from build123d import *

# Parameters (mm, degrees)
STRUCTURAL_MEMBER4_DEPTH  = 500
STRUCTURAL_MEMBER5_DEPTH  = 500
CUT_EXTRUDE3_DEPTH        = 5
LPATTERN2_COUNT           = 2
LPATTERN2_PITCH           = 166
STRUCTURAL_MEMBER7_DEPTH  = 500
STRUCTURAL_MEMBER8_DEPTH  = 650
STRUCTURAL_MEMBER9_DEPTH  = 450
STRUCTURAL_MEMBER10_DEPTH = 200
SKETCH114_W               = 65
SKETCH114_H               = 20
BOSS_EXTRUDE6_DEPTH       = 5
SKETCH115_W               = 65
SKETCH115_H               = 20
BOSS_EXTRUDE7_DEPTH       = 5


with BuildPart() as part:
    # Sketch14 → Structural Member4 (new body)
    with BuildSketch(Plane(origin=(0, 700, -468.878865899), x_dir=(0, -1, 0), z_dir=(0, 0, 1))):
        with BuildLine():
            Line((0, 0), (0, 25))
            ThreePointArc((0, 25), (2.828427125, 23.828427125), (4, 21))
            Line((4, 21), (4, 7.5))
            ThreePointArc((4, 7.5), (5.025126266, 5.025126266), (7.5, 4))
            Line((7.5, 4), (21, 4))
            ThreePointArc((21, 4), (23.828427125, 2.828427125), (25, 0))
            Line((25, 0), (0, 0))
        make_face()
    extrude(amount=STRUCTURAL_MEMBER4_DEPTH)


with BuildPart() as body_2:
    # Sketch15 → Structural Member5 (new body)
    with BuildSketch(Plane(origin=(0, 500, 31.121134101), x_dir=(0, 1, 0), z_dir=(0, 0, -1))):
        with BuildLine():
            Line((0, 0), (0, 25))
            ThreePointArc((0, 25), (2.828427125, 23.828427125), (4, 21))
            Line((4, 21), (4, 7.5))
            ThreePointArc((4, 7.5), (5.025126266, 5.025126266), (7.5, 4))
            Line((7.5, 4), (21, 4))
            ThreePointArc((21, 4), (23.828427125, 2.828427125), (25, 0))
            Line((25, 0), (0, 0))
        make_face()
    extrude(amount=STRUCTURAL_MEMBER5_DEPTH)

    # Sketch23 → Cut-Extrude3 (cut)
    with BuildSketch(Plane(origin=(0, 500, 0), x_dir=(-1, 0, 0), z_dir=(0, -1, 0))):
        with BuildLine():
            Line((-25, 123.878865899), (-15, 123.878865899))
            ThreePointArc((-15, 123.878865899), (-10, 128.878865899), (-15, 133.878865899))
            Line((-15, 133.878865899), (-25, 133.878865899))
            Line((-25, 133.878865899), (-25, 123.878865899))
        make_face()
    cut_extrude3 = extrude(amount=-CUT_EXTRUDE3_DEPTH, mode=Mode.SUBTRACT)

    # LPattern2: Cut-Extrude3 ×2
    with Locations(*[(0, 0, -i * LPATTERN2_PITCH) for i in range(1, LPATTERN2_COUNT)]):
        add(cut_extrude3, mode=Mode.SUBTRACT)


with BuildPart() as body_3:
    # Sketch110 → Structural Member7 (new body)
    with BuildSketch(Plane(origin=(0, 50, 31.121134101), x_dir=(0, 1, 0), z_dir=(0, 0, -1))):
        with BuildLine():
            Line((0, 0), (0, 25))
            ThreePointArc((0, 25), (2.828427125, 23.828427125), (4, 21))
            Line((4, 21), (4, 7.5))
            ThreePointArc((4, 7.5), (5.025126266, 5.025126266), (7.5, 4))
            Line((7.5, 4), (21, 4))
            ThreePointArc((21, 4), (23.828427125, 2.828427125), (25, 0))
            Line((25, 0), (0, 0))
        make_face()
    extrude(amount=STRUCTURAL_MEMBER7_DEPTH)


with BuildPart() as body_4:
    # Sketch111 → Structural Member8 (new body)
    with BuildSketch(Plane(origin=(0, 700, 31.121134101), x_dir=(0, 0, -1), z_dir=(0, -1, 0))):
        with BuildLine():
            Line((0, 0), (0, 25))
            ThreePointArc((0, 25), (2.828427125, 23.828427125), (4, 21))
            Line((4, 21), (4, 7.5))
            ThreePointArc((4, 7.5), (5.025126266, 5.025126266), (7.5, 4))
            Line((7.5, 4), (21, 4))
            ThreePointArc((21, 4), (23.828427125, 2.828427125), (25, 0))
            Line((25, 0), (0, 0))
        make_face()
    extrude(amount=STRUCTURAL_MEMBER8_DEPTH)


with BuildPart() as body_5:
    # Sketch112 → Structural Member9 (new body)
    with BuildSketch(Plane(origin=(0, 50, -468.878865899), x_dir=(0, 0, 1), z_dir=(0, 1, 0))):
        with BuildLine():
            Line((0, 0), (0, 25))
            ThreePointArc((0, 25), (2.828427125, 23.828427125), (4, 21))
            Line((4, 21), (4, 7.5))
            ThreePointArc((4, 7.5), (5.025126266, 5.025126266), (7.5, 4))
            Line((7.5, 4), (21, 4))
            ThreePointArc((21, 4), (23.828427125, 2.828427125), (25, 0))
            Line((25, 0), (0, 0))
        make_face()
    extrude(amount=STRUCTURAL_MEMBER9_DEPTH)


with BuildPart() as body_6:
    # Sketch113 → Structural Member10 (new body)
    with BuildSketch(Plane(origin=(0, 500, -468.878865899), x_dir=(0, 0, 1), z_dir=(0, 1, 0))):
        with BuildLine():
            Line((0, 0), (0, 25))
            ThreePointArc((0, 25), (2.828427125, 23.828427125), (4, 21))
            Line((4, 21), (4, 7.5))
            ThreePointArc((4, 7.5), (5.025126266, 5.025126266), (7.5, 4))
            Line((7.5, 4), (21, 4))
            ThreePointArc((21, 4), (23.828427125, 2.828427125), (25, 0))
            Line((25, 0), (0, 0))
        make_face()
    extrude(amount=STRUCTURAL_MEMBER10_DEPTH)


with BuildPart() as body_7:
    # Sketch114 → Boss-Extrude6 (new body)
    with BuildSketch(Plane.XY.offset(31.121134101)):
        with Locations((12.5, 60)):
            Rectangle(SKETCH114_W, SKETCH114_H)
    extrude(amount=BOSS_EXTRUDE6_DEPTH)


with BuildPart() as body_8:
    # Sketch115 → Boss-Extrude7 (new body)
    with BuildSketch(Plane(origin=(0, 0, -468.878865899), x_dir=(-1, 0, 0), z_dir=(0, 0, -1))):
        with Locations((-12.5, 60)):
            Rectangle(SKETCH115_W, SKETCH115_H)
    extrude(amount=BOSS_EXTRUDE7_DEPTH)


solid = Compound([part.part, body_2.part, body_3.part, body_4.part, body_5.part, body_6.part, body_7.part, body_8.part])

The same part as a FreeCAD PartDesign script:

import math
import FreeCAD as App
import Part
import Sketcher
Q = App.Units.Quantity

doc = App.newDocument("Part")
body = doc.addObject("PartDesign::Body", "Body")

sketch1 = doc.addObject("Sketcher::SketchObject", "Sketch")
body.addObject(sketch1)
sketch1.AttachmentSupport = (doc.XY_Plane, [""])
sketch1.MapMode = "FlatFace"
sketch1.AttachmentOffset = App.Placement(App.Vector(0, 0, -468.878866), App.Rotation())
sketch1.addGeometry([
    Part.LineSegment(App.Vector(25, 700, 0), App.Vector(0, 700, 0)),
    Part.LineSegment(App.Vector(0, 700, 0), App.Vector(0, 675, 0)),
    Part.ArcOfCircle(Part.Circle(App.Vector(0, 679, 0), App.Vector(0, 0, 1), 4), math.radians(-90), math.radians(0)),
    Part.LineSegment(App.Vector(4, 679, 0), App.Vector(4, 692.5, 0)),
    Part.ArcOfCircle(Part.Circle(App.Vector(7.5, 692.5, 0), App.Vector(0, 0, 1), 3.5), math.radians(90), math.radians(180)),
    Part.LineSegment(App.Vector(7.5, 696, 0), App.Vector(21, 696, 0)),
    Part.ArcOfCircle(Part.Circle(App.Vector(21, 700, 0), App.Vector(0, 0, 1), 4), math.radians(-90), math.radians(0)),
], False)
sketch1.addConstraint([
    Sketcher.Constraint("Coincident", 0, 2, 1, 1),
    Sketcher.Constraint("Coincident", 1, 2, 2, 1),
    Sketcher.Constraint("Tangent", 2, 2, 3, 1),
    Sketcher.Constraint("Tangent", 3, 2, 4, 2),
    Sketcher.Constraint("Tangent", 4, 1, 5, 1),
    Sketcher.Constraint("Tangent", 5, 2, 6, 1),
    Sketcher.Constraint("Coincident", 6, 2, 0, 1),
    Sketcher.Constraint("Horizontal", 0),
    Sketcher.Constraint("Vertical", 1),
    Sketcher.Constraint("Vertical", 3),
    Sketcher.Constraint("Horizontal", 5),
    Sketcher.Constraint("Equal", 2, 6),
    Sketcher.Constraint("PointOnObject", 2, 3, -2),
    Sketcher.Constraint("PointOnObject", 0, 2, -2),
    Sketcher.Constraint("Horizontal", 6, 3, 0, 2),
    Sketcher.Constraint("Equal", 0, 1),
    Sketcher.Constraint("Radius", 2, Q("4 mm")),
    Sketcher.Constraint("Radius", 4, Q("3.5 mm")),
    Sketcher.Constraint("DistanceX", 0, 2, 0, 1, Q("25 mm")),
    Sketcher.Constraint("DistanceY", -1, 1, 2, 3, Q("679 mm")),
])
pad1 = doc.addObject("PartDesign::Pad", "Pad")
body.addObject(pad1)
pad1.Profile = sketch1
pad1.Length = 500
body2 = doc.addObject("PartDesign::Body", "Body001")

sketch2 = doc.addObject("Sketcher::SketchObject", "Sketch001")
body2.addObject(sketch2)
sketch2.AttachmentSupport = (doc.getObject("XY_Plane001"), [""])
sketch2.MapMode = "FlatFace"
sketch2.AttachmentOffset = App.Placement(App.Vector(0, 0, 31.121134), App.Rotation())
sketch2.addGeometry([
    Part.LineSegment(App.Vector(25, 500, 0), App.Vector(0, 500, 0)),
    Part.LineSegment(App.Vector(0, 500, 0), App.Vector(0, 525, 0)),
    Part.ArcOfCircle(Part.Circle(App.Vector(0, 521, 0), App.Vector(0, 0, 1), 4), math.radians(0), math.radians(90)),
    Part.LineSegment(App.Vector(4, 521, 0), App.Vector(4, 507.5, 0)),
    Part.ArcOfCircle(Part.Circle(App.Vector(7.5, 507.5, 0), App.Vector(0, 0, 1), 3.5), math.radians(-180), math.radians(-90)),
    Part.LineSegment(App.Vector(7.5, 504, 0), App.Vector(21, 504, 0)),
    Part.ArcOfCircle(Part.Circle(App.Vector(21, 500, 0), App.Vector(0, 0, 1), 4), math.radians(0), math.radians(90)),
], False)
sketch2.addConstraint([
    Sketcher.Constraint("Coincident", 0, 2, 1, 1),
    Sketcher.Constraint("Coincident", 1, 2, 2, 2),
    Sketcher.Constraint("Tangent", 2, 1, 3, 1),
    Sketcher.Constraint("Tangent", 3, 2, 4, 1),
    Sketcher.Constraint("Tangent", 4, 2, 5, 1),
    Sketcher.Constraint("Tangent", 5, 2, 6, 2),
    Sketcher.Constraint("Coincident", 6, 1, 0, 1),
    Sketcher.Constraint("Horizontal", 0),
    Sketcher.Constraint("Vertical", 1),
    Sketcher.Constraint("Vertical", 3),
    Sketcher.Constraint("Horizontal", 5),
    Sketcher.Constraint("Equal", 2, 6),
    Sketcher.Constraint("PointOnObject", 2, 3, -2),
    Sketcher.Constraint("PointOnObject", 0, 2, -2),
    Sketcher.Constraint("Horizontal", 6, 3, 0, 2),
    Sketcher.Constraint("Equal", 0, 1),
    Sketcher.Constraint("Radius", 2, Q("4 mm")),
    Sketcher.Constraint("Radius", 4, Q("3.5 mm")),
    Sketcher.Constraint("DistanceX", 0, 2, 0, 1, Q("25 mm")),
    Sketcher.Constraint("DistanceY", -1, 1, 2, 3, Q("521 mm")),
])
pad2 = doc.addObject("PartDesign::Pad", "Pad001")
body2.addObject(pad2)
pad2.Profile = sketch2
pad2.Length = 500
pad2.Reversed = True

sketch3 = doc.addObject("Sketcher::SketchObject", "Sketch002")
body2.addObject(sketch3)
sketch3.AttachmentSupport = (doc.getObject("XZ_Plane001"), [""])
sketch3.MapMode = "FlatFace"
sketch3.AttachmentOffset = App.Placement(App.Vector(0, 0, -500), App.Rotation())
sketch3.addGeometry([
    Part.LineSegment(App.Vector(25, -124, 0), App.Vector(15, -124, 0)),
    Part.ArcOfCircle(Part.Circle(App.Vector(15, -129, 0), App.Vector(0, 0, 1), 5), math.radians(90), math.radians(270)),
    Part.LineSegment(App.Vector(15, -134, 0), App.Vector(25, -134, 0)),
    Part.LineSegment(App.Vector(25, -134, 0), App.Vector(25, -124, 0)),
], False)
sketch3.addConstraint([
    Sketcher.Constraint("Tangent", 0, 2, 1, 1),
    Sketcher.Constraint("Tangent", 1, 2, 2, 1),
    Sketcher.Constraint("Coincident", 2, 2, 3, 1),
    Sketcher.Constraint("Coincident", 3, 2, 0, 1),
    Sketcher.Constraint("Horizontal", 0),
    Sketcher.Constraint("Horizontal", 2),
    Sketcher.Constraint("Vertical", 3),
    Sketcher.Constraint("Equal", 2, 3),
    Sketcher.Constraint("Radius", 1, Q("5 mm")),
    Sketcher.Constraint("DistanceX", -1, 1, 1, 3, Q("15 mm")),
    Sketcher.Constraint("DistanceY", 1, 3, -1, 1, Q("128.878866 mm")),
])
pocket1 = doc.addObject("PartDesign::Pocket", "Pocket")
body2.addObject(pocket1)
pocket1.Profile = sketch3
pocket1.Length = 5
doc.recompute()

linearpattern = doc.addObject("PartDesign::LinearPattern", "LinearPattern")
body2.addObject(linearpattern)
linearpattern.Originals = [pocket1]
linearpattern.Direction = (doc.getObject("Z_Axis001"), [""])
linearpattern.Mode = "offset"
linearpattern.Offset = 166
linearpattern.Occurrences = 2
linearpattern.Reversed = True
body2.Tip = linearpattern
body3 = doc.addObject("PartDesign::Body", "Body002")

sketch4 = doc.addObject("Sketcher::SketchObject", "Sketch003")
body3.addObject(sketch4)
sketch4.AttachmentSupport = (doc.getObject("XY_Plane002"), [""])
sketch4.MapMode = "FlatFace"
sketch4.AttachmentOffset = App.Placement(App.Vector(0, 0, 31.121134), App.Rotation())
sketch4.addGeometry([
    Part.LineSegment(App.Vector(25, 50, 0), App.Vector(0, 50, 0)),
    Part.LineSegment(App.Vector(0, 50, 0), App.Vector(0, 75, 0)),
    Part.ArcOfCircle(Part.Circle(App.Vector(0, 71, 0), App.Vector(0, 0, 1), 4), math.radians(0), math.radians(90)),
    Part.LineSegment(App.Vector(4, 71, 0), App.Vector(4, 57.5, 0)),
    Part.ArcOfCircle(Part.Circle(App.Vector(7.5, 57.5, 0), App.Vector(0, 0, 1), 3.5), math.radians(-180), math.radians(-90)),
    Part.LineSegment(App.Vector(7.5, 54, 0), App.Vector(21, 54, 0)),
    Part.ArcOfCircle(Part.Circle(App.Vector(21, 50, 0), App.Vector(0, 0, 1), 4), math.radians(0), math.radians(90)),
], False)
sketch4.addConstraint([
    Sketcher.Constraint("Coincident", 0, 2, 1, 1),
    Sketcher.Constraint("Coincident", 1, 2, 2, 2),
    Sketcher.Constraint("Tangent", 2, 1, 3, 1),
    Sketcher.Constraint("Tangent", 3, 2, 4, 1),
    Sketcher.Constraint("Tangent", 4, 2, 5, 1),
    Sketcher.Constraint("Tangent", 5, 2, 6, 2),
    Sketcher.Constraint("Coincident", 6, 1, 0, 1),
    Sketcher.Constraint("Horizontal", 0),
    Sketcher.Constraint("Vertical", 1),
    Sketcher.Constraint("Vertical", 3),
    Sketcher.Constraint("Horizontal", 5),
    Sketcher.Constraint("Equal", 2, 6),
    Sketcher.Constraint("PointOnObject", 2, 3, -2),
    Sketcher.Constraint("PointOnObject", 0, 2, -2),
    Sketcher.Constraint("Horizontal", 6, 3, 0, 2),
    Sketcher.Constraint("Equal", 0, 1),
    Sketcher.Constraint("Radius", 2, Q("4 mm")),
    Sketcher.Constraint("Radius", 4, Q("3.5 mm")),
    Sketcher.Constraint("DistanceX", 0, 2, 0, 1, Q("25 mm")),
    Sketcher.Constraint("DistanceY", -1, 1, 2, 3, Q("71 mm")),
])
pad3 = doc.addObject("PartDesign::Pad", "Pad002")
body3.addObject(pad3)
pad3.Profile = sketch4
pad3.Length = 500
pad3.Reversed = True
body4 = doc.addObject("PartDesign::Body", "Body003")

sketch5 = doc.addObject("Sketcher::SketchObject", "Sketch004")
body4.addObject(sketch5)
sketch5.AttachmentSupport = (doc.getObject("XZ_Plane003"), [""])
sketch5.MapMode = "FlatFace"
sketch5.AttachmentOffset = App.Placement(App.Vector(0, 0, -700), App.Rotation())
sketch5.addGeometry([
    Part.LineSegment(App.Vector(25, 31.1, 0), App.Vector(0, 31.1, 0)),
    Part.LineSegment(App.Vector(0, 31.1, 0), App.Vector(0, 6.1, 0)),
    Part.ArcOfCircle(Part.Circle(App.Vector(0, 10.1, 0), App.Vector(0, 0, 1), 4), math.radians(-90), math.radians(0)),
    Part.LineSegment(App.Vector(4, 10.1, 0), App.Vector(4, 23.6, 0)),
    Part.ArcOfCircle(Part.Circle(App.Vector(7.5, 23.6, 0), App.Vector(0, 0, 1), 3.5), math.radians(90), math.radians(180)),
    Part.LineSegment(App.Vector(7.5, 27.1, 0), App.Vector(21, 27.1, 0)),
    Part.ArcOfCircle(Part.Circle(App.Vector(21, 31.1, 0), App.Vector(0, 0, 1), 4), math.radians(-90), math.radians(0)),
], False)
sketch5.addConstraint([
    Sketcher.Constraint("Coincident", 0, 2, 1, 1),
    Sketcher.Constraint("Coincident", 1, 2, 2, 1),
    Sketcher.Constraint("Tangent", 2, 2, 3, 1),
    Sketcher.Constraint("Tangent", 3, 2, 4, 2),
    Sketcher.Constraint("Tangent", 4, 1, 5, 1),
    Sketcher.Constraint("Tangent", 5, 2, 6, 1),
    Sketcher.Constraint("Coincident", 6, 2, 0, 1),
    Sketcher.Constraint("Horizontal", 0),
    Sketcher.Constraint("Vertical", 1),
    Sketcher.Constraint("Vertical", 3),
    Sketcher.Constraint("Horizontal", 5),
    Sketcher.Constraint("Equal", 2, 6),
    Sketcher.Constraint("PointOnObject", 2, 3, -2),
    Sketcher.Constraint("PointOnObject", 0, 2, -2),
    Sketcher.Constraint("Horizontal", 6, 3, 0, 2),
    Sketcher.Constraint("Equal", 0, 1),
    Sketcher.Constraint("Radius", 2, Q("4 mm")),
    Sketcher.Constraint("Radius", 4, Q("3.5 mm")),
    Sketcher.Constraint("DistanceX", 0, 2, 0, 1, Q("25 mm")),
    Sketcher.Constraint("DistanceY", -1, 1, 2, 3, Q("10.121134 mm")),
])
pad4 = doc.addObject("PartDesign::Pad", "Pad003")
body4.addObject(pad4)
pad4.Profile = sketch5
pad4.Length = 650
body5 = doc.addObject("PartDesign::Body", "Body004")

sketch6 = doc.addObject("Sketcher::SketchObject", "Sketch005")
body5.addObject(sketch6)
sketch6.AttachmentSupport = (doc.getObject("XZ_Plane004"), [""])
sketch6.MapMode = "FlatFace"
sketch6.AttachmentOffset = App.Placement(App.Vector(0, 0, -50), App.Rotation())
sketch6.addGeometry([
    Part.LineSegment(App.Vector(25, -468.9, 0), App.Vector(0, -468.9, 0)),
    Part.LineSegment(App.Vector(0, -468.9, 0), App.Vector(0, -443.9, 0)),
    Part.ArcOfCircle(Part.Circle(App.Vector(0, -447.9, 0), App.Vector(0, 0, 1), 4), math.radians(0), math.radians(90)),
    Part.LineSegment(App.Vector(4, -447.9, 0), App.Vector(4, -461.4, 0)),
    Part.ArcOfCircle(Part.Circle(App.Vector(7.5, -461.4, 0), App.Vector(0, 0, 1), 3.5), math.radians(-180), math.radians(-90)),
    Part.LineSegment(App.Vector(7.5, -464.9, 0), App.Vector(21, -464.9, 0)),
    Part.ArcOfCircle(Part.Circle(App.Vector(21, -468.9, 0), App.Vector(0, 0, 1), 4), math.radians(0), math.radians(90)),
], False)
sketch6.addConstraint([
    Sketcher.Constraint("Coincident", 0, 2, 1, 1),
    Sketcher.Constraint("Coincident", 1, 2, 2, 2),
    Sketcher.Constraint("Tangent", 2, 1, 3, 1),
    Sketcher.Constraint("Tangent", 3, 2, 4, 1),
    Sketcher.Constraint("Tangent", 4, 2, 5, 1),
    Sketcher.Constraint("Tangent", 5, 2, 6, 2),
    Sketcher.Constraint("Coincident", 6, 1, 0, 1),
    Sketcher.Constraint("Horizontal", 0),
    Sketcher.Constraint("Vertical", 1),
    Sketcher.Constraint("Vertical", 3),
    Sketcher.Constraint("Horizontal", 5),
    Sketcher.Constraint("Equal", 2, 6),
    Sketcher.Constraint("PointOnObject", 2, 3, -2),
    Sketcher.Constraint("PointOnObject", 0, 2, -2),
    Sketcher.Constraint("Horizontal", 6, 3, 0, 2),
    Sketcher.Constraint("Equal", 0, 1),
    Sketcher.Constraint("Radius", 2, Q("4 mm")),
    Sketcher.Constraint("Radius", 4, Q("3.5 mm")),
    Sketcher.Constraint("DistanceX", 0, 2, 0, 1, Q("25 mm")),
    Sketcher.Constraint("DistanceY", 2, 3, -1, 1, Q("447.878866 mm")),
])
pad5 = doc.addObject("PartDesign::Pad", "Pad004")
body5.addObject(pad5)
pad5.Profile = sketch6
pad5.Length = 450
pad5.Reversed = True
body6 = doc.addObject("PartDesign::Body", "Body005")

sketch7 = doc.addObject("Sketcher::SketchObject", "Sketch006")
body6.addObject(sketch7)
sketch7.AttachmentSupport = (doc.getObject("XZ_Plane005"), [""])
sketch7.MapMode = "FlatFace"
sketch7.AttachmentOffset = App.Placement(App.Vector(0, 0, -500), App.Rotation())
sketch7.addGeometry([
    Part.LineSegment(App.Vector(25, -468.9, 0), App.Vector(0, -468.9, 0)),
    Part.LineSegment(App.Vector(0, -468.9, 0), App.Vector(0, -443.9, 0)),
    Part.ArcOfCircle(Part.Circle(App.Vector(0, -447.9, 0), App.Vector(0, 0, 1), 4), math.radians(0), math.radians(90)),
    Part.LineSegment(App.Vector(4, -447.9, 0), App.Vector(4, -461.4, 0)),
    Part.ArcOfCircle(Part.Circle(App.Vector(7.5, -461.4, 0), App.Vector(0, 0, 1), 3.5), math.radians(-180), math.radians(-90)),
    Part.LineSegment(App.Vector(7.5, -464.9, 0), App.Vector(21, -464.9, 0)),
    Part.ArcOfCircle(Part.Circle(App.Vector(21, -468.9, 0), App.Vector(0, 0, 1), 4), math.radians(0), math.radians(90)),
], False)
sketch7.addConstraint([
    Sketcher.Constraint("Coincident", 0, 2, 1, 1),
    Sketcher.Constraint("Coincident", 1, 2, 2, 2),
    Sketcher.Constraint("Tangent", 2, 1, 3, 1),
    Sketcher.Constraint("Tangent", 3, 2, 4, 1),
    Sketcher.Constraint("Tangent", 4, 2, 5, 1),
    Sketcher.Constraint("Tangent", 5, 2, 6, 2),
    Sketcher.Constraint("Coincident", 6, 1, 0, 1),
    Sketcher.Constraint("Horizontal", 0),
    Sketcher.Constraint("Vertical", 1),
    Sketcher.Constraint("Vertical", 3),
    Sketcher.Constraint("Horizontal", 5),
    Sketcher.Constraint("Equal", 2, 6),
    Sketcher.Constraint("PointOnObject", 2, 3, -2),
    Sketcher.Constraint("PointOnObject", 0, 2, -2),
    Sketcher.Constraint("Horizontal", 6, 3, 0, 2),
    Sketcher.Constraint("Equal", 0, 1),
    Sketcher.Constraint("Radius", 2, Q("4 mm")),
    Sketcher.Constraint("Radius", 4, Q("3.5 mm")),
    Sketcher.Constraint("DistanceX", 0, 2, 0, 1, Q("25 mm")),
    Sketcher.Constraint("DistanceY", 2, 3, -1, 1, Q("447.878866 mm")),
])
pad6 = doc.addObject("PartDesign::Pad", "Pad005")
body6.addObject(pad6)
pad6.Profile = sketch7
pad6.Length = 200
pad6.Reversed = True
body7 = doc.addObject("PartDesign::Body", "Body006")

sketch8 = doc.addObject("Sketcher::SketchObject", "Sketch007")
body7.addObject(sketch8)
sketch8.AttachmentSupport = (doc.getObject("XY_Plane006"), [""])
sketch8.MapMode = "FlatFace"
sketch8.AttachmentOffset = App.Placement(App.Vector(0, 0, 31.121134), App.Rotation())
sketch8.addGeometry([
    Part.LineSegment(App.Vector(-20, 70, 0), App.Vector(-20, 50, 0)),
    Part.LineSegment(App.Vector(-20, 50, 0), App.Vector(45, 50, 0)),
    Part.LineSegment(App.Vector(45, 50, 0), App.Vector(45, 70, 0)),
    Part.LineSegment(App.Vector(45, 70, 0), App.Vector(-20, 70, 0)),
], False)
sketch8.addConstraint([
    Sketcher.Constraint("Coincident", 0, 2, 1, 1),
    Sketcher.Constraint("Coincident", 1, 2, 2, 1),
    Sketcher.Constraint("Coincident", 2, 2, 3, 1),
    Sketcher.Constraint("Coincident", 3, 2, 0, 1),
    Sketcher.Constraint("Vertical", 0),
    Sketcher.Constraint("Horizontal", 1),
    Sketcher.Constraint("Vertical", 2),
    Sketcher.Constraint("Horizontal", 3),
    Sketcher.Constraint("DistanceX", 1, 1, 1, 2, Q("65 mm")),
    Sketcher.Constraint("DistanceY", 0, 2, 0, 1, Q("20 mm")),
    Sketcher.Constraint("DistanceX", 0, 2, -1, 1, Q("20 mm")),
    Sketcher.Constraint("DistanceY", -1, 1, 0, 2, Q("50 mm")),
])
pad7 = doc.addObject("PartDesign::Pad", "Pad006")
body7.addObject(pad7)
pad7.Profile = sketch8
pad7.Length = 5
body8 = doc.addObject("PartDesign::Body", "Body007")

sketch9 = doc.addObject("Sketcher::SketchObject", "Sketch008")
body8.addObject(sketch9)
sketch9.AttachmentSupport = (doc.getObject("XY_Plane007"), [""])
sketch9.MapMode = "FlatFace"
sketch9.AttachmentOffset = App.Placement(App.Vector(0, 0, -468.878866), App.Rotation())
sketch9.addGeometry([
    Part.LineSegment(App.Vector(45, 70, 0), App.Vector(45, 50, 0)),
    Part.LineSegment(App.Vector(45, 50, 0), App.Vector(-20, 50, 0)),
    Part.LineSegment(App.Vector(-20, 50, 0), App.Vector(-20, 70, 0)),
    Part.LineSegment(App.Vector(-20, 70, 0), App.Vector(45, 70, 0)),
], False)
sketch9.addConstraint([
    Sketcher.Constraint("Coincident", 0, 2, 1, 1),
    Sketcher.Constraint("Coincident", 1, 2, 2, 1),
    Sketcher.Constraint("Coincident", 2, 2, 3, 1),
    Sketcher.Constraint("Coincident", 3, 2, 0, 1),
    Sketcher.Constraint("Vertical", 0),
    Sketcher.Constraint("Horizontal", 1),
    Sketcher.Constraint("Vertical", 2),
    Sketcher.Constraint("Horizontal", 3),
    Sketcher.Constraint("DistanceX", 1, 2, 1, 1, Q("65 mm")),
    Sketcher.Constraint("DistanceY", 0, 2, 0, 1, Q("20 mm")),
    Sketcher.Constraint("DistanceX", -1, 1, 0, 2, Q("45 mm")),
    Sketcher.Constraint("DistanceY", -1, 1, 0, 2, Q("50 mm")),
])
pad8 = doc.addObject("PartDesign::Pad", "Pad007")
body8.addObject(pad8)
pad8.Profile = sketch9
pad8.Length = 5
pad8.Reversed = True

doc.recompute()
